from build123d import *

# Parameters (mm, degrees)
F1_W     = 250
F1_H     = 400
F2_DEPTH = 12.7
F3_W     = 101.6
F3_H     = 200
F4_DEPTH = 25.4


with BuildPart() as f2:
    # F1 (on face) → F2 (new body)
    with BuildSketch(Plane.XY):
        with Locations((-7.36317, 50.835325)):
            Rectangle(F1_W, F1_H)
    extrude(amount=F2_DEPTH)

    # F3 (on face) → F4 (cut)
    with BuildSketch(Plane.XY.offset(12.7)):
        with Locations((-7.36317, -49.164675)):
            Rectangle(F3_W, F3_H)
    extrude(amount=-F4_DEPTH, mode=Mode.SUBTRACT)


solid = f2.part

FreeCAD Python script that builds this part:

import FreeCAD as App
import Part
import Sketcher
Q = App.Units.Quantity

doc = App.newDocument("Part")
body = doc.addObject("PartDesign::Body", "Body")

# Sketch on XY plane
sketch1 = body.newObject("Sketcher::SketchObject", "Sketch")
sketch1.AttachmentSupport = (doc.getObject("XY_Plane"), [""])
sketch1.MapMode = "FlatFace"
sketch1.addGeometry(Part.LineSegment(App.Vector(-132, 251, 0), App.Vector(-132, -149, 0)), False)
sketch1.addGeometry(Part.LineSegment(App.Vector(-132, -149, 0), App.Vector(118, -149, 0)), False)
sketch1.addGeometry(Part.LineSegment(App.Vector(118, -149, 0), App.Vector(118, 251, 0)), False)
sketch1.addGeometry(Part.LineSegment(App.Vector(118, 251, 0), App.Vector(-132, 251, 0)), False)
sketch1.addConstraint(Sketcher.Constraint("Coincident", 0, 2, 1, 1))
sketch1.addConstraint(Sketcher.Constraint("Coincident", 1, 2, 2, 1))
sketch1.addConstraint(Sketcher.Constraint("Coincident", 2, 2, 3, 1))
sketch1.addConstraint(Sketcher.Constraint("Coincident", 3, 2, 0, 1))
sketch1.addConstraint(Sketcher.Constraint("Vertical", 0))
sketch1.addConstraint(Sketcher.Constraint("Horizontal", 1))
sketch1.addConstraint(Sketcher.Constraint("Vertical", 2))
sketch1.addConstraint(Sketcher.Constraint("Horizontal", 3))
sketch1.addConstraint(Sketcher.Constraint("DistanceX", 1, 1, 1, 2, Q("250 mm")))
sketch1.addConstraint(Sketcher.Constraint("DistanceY", 0, 2, 0, 1, Q("400 mm")))
sketch1.addConstraint(Sketcher.Constraint("DistanceX", 0, 2, -1, 1, Q("132.36317 mm")))
sketch1.addConstraint(Sketcher.Constraint("DistanceY", 0, 2, -1, 1, Q("149.164675 mm")))
pad1 = body.newObject("PartDesign::Pad", "Pad")
pad1.Profile = sketch1
pad1.Length = 12.7

# Sketch on XY plane
sketch2 = body.newObject("Sketcher::SketchObject", "Sketch001")
sketch2.AttachmentSupport = (doc.getObject("XY_Plane"), [""])
sketch2.MapMode = "FlatFace"
sketch2.AttachmentOffset = App.Placement(App.Vector(0, 0, 12.7), App.Rotation())
sketch2.addGeometry(Part.LineSegment(App.Vector(-58, 51, 0), App.Vector(-58, -149, 0)), False)
sketch2.addGeometry(Part.LineSegment(App.Vector(-58, -149, 0), App.Vector(43, -149, 0)), False)
sketch2.addGeometry(Part.LineSegment(App.Vector(43, -149, 0), App.Vector(43, 51, 0)), False)
sketch2.addGeometry(Part.LineSegment(App.Vector(43, 51, 0), App.Vector(-58, 51, 0)), False)
sketch2.addConstraint(Sketcher.Constraint("Coincident", 0, 2, 1, 1))
sketch2.addConstraint(Sketcher.Constraint("Coincident", 1, 2, 2, 1))
sketch2.addConstraint(Sketcher.Constraint("Coincident", 2, 2, 3, 1))
sketch2.addConstraint(Sketcher.Constraint("Coincident", 3, 2, 0, 1))
sketch2.addConstraint(Sketcher.Constraint("Vertical", 0))
sketch2.addConstraint(Sketcher.Constraint("Horizontal", 1))
sketch2.addConstraint(Sketcher.Constraint("Vertical", 2))
sketch2.addConstraint(Sketcher.Constraint("Horizontal", 3))
sketch2.addConstraint(Sketcher.Constraint("DistanceY", 0, 2, 0, 1, Q("200 mm")))
sketch2.addConstraint(Sketcher.Constraint("DistanceX", 1, 1, 1, 2, Q("101.6 mm")))
sketch2.addConstraint(Sketcher.Constraint("DistanceX", 0, 2, -1, 1, Q("58.16317 mm")))
sketch2.addConstraint(Sketcher.Constraint("DistanceY", 0, 2, -1, 1, Q("149.164675 mm")))
pocket1 = body.newObject("PartDesign::Pocket", "Pocket")
pocket1.Profile = sketch2
pocket1.Length = 25.4

doc.recompute()
